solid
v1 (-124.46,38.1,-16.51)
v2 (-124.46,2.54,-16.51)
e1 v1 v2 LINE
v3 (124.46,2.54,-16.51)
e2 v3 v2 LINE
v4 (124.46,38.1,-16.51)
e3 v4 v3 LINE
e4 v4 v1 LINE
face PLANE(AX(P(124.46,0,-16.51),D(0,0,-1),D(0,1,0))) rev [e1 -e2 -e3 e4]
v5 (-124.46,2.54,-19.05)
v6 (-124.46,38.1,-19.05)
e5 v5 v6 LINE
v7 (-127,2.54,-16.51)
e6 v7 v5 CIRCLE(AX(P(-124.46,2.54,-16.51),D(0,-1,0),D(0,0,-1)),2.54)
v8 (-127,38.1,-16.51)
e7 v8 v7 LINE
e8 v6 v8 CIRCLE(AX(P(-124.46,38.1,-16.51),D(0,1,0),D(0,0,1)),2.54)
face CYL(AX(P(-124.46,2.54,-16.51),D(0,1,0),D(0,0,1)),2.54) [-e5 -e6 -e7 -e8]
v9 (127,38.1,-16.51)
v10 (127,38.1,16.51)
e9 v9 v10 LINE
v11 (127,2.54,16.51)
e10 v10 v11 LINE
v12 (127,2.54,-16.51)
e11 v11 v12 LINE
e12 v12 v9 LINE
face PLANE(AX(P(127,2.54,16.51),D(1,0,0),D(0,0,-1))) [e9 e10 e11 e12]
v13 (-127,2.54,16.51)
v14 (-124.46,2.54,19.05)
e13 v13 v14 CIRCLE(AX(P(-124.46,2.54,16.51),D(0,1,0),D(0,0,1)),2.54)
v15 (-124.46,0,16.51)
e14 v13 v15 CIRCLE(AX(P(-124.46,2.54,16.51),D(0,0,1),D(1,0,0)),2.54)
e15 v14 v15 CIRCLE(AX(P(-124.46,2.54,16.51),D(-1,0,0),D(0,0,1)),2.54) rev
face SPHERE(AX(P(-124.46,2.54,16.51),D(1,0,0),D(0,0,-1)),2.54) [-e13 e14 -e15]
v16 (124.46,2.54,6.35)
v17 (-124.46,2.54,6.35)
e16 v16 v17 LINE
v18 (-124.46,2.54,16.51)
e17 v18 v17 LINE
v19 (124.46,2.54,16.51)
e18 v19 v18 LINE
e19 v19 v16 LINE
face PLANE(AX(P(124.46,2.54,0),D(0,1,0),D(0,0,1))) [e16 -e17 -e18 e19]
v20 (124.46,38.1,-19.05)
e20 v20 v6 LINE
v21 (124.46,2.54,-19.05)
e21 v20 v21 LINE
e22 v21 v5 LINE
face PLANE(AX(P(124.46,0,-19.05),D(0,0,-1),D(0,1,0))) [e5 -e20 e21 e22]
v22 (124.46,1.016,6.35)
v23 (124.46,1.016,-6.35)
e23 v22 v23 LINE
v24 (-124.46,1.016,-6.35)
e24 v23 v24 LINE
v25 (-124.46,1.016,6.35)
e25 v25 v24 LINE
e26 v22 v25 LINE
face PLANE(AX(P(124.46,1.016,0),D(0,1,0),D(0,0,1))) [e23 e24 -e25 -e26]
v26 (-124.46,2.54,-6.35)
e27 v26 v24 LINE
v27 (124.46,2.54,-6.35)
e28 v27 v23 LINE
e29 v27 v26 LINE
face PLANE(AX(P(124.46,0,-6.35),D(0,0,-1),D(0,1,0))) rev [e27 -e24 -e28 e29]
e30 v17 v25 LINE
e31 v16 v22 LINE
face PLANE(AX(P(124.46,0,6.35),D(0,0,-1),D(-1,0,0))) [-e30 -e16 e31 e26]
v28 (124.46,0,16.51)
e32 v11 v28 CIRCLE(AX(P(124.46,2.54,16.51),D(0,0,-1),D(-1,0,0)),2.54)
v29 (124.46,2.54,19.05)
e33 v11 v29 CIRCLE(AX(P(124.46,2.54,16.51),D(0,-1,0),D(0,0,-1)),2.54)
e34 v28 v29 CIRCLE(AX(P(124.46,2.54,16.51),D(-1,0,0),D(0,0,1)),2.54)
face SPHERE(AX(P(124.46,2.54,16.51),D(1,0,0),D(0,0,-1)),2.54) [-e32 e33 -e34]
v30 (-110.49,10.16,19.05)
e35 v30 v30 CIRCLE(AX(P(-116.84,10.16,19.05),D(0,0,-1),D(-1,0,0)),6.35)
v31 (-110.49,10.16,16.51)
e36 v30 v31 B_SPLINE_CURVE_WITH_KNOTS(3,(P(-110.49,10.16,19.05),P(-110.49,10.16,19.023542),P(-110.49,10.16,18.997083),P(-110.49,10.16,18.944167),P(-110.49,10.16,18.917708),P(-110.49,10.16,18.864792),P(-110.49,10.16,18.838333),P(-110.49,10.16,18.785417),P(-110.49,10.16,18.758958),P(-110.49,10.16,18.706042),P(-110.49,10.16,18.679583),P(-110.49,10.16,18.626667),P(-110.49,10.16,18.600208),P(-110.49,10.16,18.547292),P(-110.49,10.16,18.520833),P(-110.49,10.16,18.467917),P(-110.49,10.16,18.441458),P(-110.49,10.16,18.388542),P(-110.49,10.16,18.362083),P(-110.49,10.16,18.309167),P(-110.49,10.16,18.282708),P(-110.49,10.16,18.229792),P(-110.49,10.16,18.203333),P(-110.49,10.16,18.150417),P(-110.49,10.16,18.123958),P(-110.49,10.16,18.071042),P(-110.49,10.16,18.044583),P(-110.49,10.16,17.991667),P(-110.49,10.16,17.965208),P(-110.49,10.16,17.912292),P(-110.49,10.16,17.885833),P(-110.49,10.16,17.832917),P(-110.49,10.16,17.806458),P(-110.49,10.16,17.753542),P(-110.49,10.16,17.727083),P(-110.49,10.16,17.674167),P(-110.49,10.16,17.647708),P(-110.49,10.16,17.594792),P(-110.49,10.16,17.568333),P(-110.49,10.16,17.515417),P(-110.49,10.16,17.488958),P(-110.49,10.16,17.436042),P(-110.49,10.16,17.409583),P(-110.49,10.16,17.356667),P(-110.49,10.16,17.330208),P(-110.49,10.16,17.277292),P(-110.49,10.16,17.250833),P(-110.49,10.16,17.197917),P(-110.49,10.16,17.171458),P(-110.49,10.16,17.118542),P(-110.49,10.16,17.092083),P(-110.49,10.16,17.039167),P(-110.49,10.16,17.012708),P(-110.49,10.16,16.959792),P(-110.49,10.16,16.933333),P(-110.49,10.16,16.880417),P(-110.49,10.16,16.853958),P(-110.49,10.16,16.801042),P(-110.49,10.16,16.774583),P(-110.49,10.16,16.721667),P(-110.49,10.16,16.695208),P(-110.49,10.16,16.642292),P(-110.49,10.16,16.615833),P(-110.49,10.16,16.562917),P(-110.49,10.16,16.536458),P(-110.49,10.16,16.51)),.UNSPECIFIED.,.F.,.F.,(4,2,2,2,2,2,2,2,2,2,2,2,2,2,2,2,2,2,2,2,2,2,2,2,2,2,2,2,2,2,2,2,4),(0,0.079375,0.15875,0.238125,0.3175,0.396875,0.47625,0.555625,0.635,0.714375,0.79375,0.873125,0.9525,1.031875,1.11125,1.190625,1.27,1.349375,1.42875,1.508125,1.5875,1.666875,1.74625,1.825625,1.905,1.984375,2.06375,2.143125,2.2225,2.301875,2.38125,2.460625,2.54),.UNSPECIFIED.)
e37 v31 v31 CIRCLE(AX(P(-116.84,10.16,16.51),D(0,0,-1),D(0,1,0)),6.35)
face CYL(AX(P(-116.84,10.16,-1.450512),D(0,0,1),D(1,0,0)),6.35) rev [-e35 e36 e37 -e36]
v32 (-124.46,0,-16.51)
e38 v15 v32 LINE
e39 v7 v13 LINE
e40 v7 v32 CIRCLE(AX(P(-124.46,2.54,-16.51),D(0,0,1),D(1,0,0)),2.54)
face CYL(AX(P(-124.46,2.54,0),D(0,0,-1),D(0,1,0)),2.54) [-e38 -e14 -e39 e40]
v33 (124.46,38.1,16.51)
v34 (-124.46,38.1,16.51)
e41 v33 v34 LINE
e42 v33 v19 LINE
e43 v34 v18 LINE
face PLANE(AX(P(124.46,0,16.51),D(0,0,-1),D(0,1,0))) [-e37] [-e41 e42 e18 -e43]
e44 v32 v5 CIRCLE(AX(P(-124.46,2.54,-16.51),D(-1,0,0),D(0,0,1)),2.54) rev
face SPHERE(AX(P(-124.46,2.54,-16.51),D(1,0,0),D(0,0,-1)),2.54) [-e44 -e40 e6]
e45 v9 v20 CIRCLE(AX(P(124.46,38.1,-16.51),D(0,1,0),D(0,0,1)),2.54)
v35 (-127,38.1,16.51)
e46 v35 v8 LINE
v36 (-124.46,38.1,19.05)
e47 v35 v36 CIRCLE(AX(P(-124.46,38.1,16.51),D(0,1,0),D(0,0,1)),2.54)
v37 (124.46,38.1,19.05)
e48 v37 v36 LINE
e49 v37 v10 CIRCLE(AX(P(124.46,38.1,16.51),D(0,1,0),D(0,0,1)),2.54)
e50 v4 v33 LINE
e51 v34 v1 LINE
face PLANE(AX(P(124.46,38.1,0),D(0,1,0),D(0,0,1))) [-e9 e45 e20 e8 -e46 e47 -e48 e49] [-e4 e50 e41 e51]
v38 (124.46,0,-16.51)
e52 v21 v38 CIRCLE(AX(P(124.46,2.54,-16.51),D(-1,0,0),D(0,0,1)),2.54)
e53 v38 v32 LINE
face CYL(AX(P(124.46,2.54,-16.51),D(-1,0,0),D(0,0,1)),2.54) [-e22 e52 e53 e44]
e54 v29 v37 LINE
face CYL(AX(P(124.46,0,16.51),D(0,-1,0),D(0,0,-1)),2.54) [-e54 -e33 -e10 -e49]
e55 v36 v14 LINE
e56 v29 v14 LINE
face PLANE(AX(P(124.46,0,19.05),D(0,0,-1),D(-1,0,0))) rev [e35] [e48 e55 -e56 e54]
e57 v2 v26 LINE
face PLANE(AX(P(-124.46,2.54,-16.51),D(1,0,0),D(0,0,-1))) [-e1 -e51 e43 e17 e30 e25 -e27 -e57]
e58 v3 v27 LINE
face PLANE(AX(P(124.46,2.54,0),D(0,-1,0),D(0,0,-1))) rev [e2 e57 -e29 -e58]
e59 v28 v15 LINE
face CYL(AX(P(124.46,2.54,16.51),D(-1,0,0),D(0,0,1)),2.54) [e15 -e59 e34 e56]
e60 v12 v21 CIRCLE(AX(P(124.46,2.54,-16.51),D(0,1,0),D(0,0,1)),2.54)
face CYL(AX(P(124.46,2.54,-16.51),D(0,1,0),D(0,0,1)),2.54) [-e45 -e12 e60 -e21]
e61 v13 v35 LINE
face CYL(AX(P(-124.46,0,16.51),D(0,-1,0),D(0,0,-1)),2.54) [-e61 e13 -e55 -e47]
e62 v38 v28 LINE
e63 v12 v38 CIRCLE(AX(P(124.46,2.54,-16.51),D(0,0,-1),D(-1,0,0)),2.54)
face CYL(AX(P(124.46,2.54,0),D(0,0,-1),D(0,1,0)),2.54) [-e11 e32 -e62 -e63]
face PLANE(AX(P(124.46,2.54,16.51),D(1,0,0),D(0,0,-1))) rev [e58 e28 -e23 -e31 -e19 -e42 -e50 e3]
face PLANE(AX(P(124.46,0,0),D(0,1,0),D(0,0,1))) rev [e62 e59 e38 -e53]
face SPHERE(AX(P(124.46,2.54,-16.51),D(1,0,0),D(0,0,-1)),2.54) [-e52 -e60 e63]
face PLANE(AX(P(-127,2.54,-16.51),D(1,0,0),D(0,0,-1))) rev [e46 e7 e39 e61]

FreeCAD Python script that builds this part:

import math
import FreeCAD as App
import Part
import Sketcher
Q = App.Units.Quantity


def edges_at(feature, points):
    """Names of the edges that pass closest to the given points."""
    edges = feature.Shape.Edges
    near = lambda p: min(range(len(edges)), key=lambda i: edges[i].distToShape(Part.Vertex(*p))[0])
    return sorted({f"Edge{near(p) + 1}" for p in points})

doc = App.newDocument("Part")
params = doc.addObject("Spreadsheet::Sheet", "Params")
for row, (alias, value) in enumerate([
    ("sketch1_radius", "0.1 in"),
    ("sketch1_width", "1.4 in"),
    ("sketch1_height", "1.3 in"),
    ("sketch1_height2", "0.4 in"),
    ("sketch1_width2", "0.06 in"),
    ("pad1_length", "9.8 in"),
    ("sketch2_radius", "0.1 in"),
    ("sketch2_width", "1.4 in"),
    ("sketch2_height", "1.3 in"),
    ("pad2_length", "0.1 in"),
    ("sketch3_radius", "0.1 in"),
    ("sketch3_width", "1.4 in"),
    ("sketch3_height", "1.3 in"),
    ("pad3_length", "0.1 in"),
    ("sketch4_diameter", "0.5 in"),
    ("pocket1_length", "0.1 in"),
    ("fillet_radius", "0.1 in"),
    ("fillet2_radius", "0.1 in"),
], start=1):
    params.set(f"A{row}", alias)
    params.set(f"B{row}", "=" + value)
    params.setAlias(f"B{row}", alias)

body = doc.addObject("PartDesign::Body", "Body")

sketch1 = body.newObject("Sketcher::SketchObject", "Sketch")
sketch1.AttachmentSupport = (doc.getObject("YZ_Plane"), [""])
sketch1.MapMode = "FlatFace"
sketch1.addGeometry([
    Part.LineSegment(App.Vector(38.1, 16.5, 0), App.Vector(38.1, 19.1, 0)),
    Part.LineSegment(App.Vector(38.1, 19.1, 0), App.Vector(2.5, 19.1, 0)),
    Part.ArcOfCircle(Part.Circle(App.Vector(2.5, 16.5, 0), App.Vector(0, 0, 1), 2.5), math.radians(90), math.radians(180)),
    Part.LineSegment(App.Vector(0, 16.5, 0), App.Vector(0, -16.5, 0)),
    Part.ArcOfCircle(Part.Circle(App.Vector(2.5, -16.5, 0), App.Vector(0, 0, 1), 2.5), math.radians(-180), math.radians(-90)),
    Part.LineSegment(App.Vector(2.5, -19.1, 0), App.Vector(38.1, -19.1, 0)),
    Part.LineSegment(App.Vector(38.1, -19.1, 0), App.Vector(38.1, -16.5, 0)),
    Part.LineSegment(App.Vector(38.1, -16.5, 0), App.Vector(2.5, -16.5, 0)),
    Part.LineSegment(App.Vector(2.5, -16.5, 0), App.Vector(2.5, -6.3, 0)),
    Part.LineSegment(App.Vector(2.5, -6.3, 0), App.Vector(1, -6.3, 0)),
    Part.LineSegment(App.Vector(1, -6.3, 0), App.Vector(1, 6.3, 0)),
    Part.LineSegment(App.Vector(1, 6.3, 0), App.Vector(2.5, 6.3, 0)),
    Part.LineSegment(App.Vector(2.5, 6.3, 0), App.Vector(2.5, 16.5, 0)),
    Part.LineSegment(App.Vector(2.5, 16.5, 0), App.Vector(38.1, 16.5, 0)),
], False)
sketch1.addConstraint([
    Sketcher.Constraint("Coincident", 0, 2, 1, 1),
    Sketcher.Constraint("Tangent", 1, 2, 2, 1),
    Sketcher.Constraint("Tangent", 2, 2, 3, 1),
    Sketcher.Constraint("Tangent", 3, 2, 4, 1),
    Sketcher.Constraint("Tangent", 4, 2, 5, 1),
    Sketcher.Constraint("Coincident", 5, 2, 6, 1),
    Sketcher.Constraint("Coincident", 6, 2, 7, 1),
    Sketcher.Constraint("Coincident", 7, 2, 8, 1),
    Sketcher.Constraint("Coincident", 8, 2, 9, 1),
    Sketcher.Constraint("Coincident", 9, 2, 10, 1),
    Sketcher.Constraint("Coincident", 10, 2, 11, 1),
    Sketcher.Constraint("Coincident", 11, 2, 12, 1),
    Sketcher.Constraint("Coincident", 12, 2, 13, 1),
    Sketcher.Constraint("Coincident", 13, 2, 0, 1),
    Sketcher.Constraint("Vertical", 0),
    Sketcher.Constraint("Horizontal", 1),
    Sketcher.Constraint("Vertical", 3),
    Sketcher.Constraint("Horizontal", 5),
    Sketcher.Constraint("Vertical", 6),
    Sketcher.Constraint("Horizontal", 7),
    Sketcher.Constraint("Vertical", 8),
    Sketcher.Constraint("Horizontal", 9),
    Sketcher.Constraint("Vertical", 10),
    Sketcher.Constraint("Horizontal", 11),
    Sketcher.Constraint("Vertical", 12),
    Sketcher.Constraint("Horizontal", 13),
    Sketcher.Constraint("Coincident", 7, 2, 4, 3),
    Sketcher.Constraint("Coincident", 12, 2, 2, 3),
    Sketcher.Constraint("Equal", 2, 4),
    Sketcher.Constraint("Symmetric", 2, 2, 3, 2, -1, 1),
    Sketcher.Constraint("Vertical", 0, 2, 5, 2),
    Sketcher.Constraint("Equal", 8, 12),
    Sketcher.Constraint("Radius", 2, Q("0.1 in")),
    Sketcher.Constraint("DistanceX", 1, 2, 1, 1, Q("1.4 in")),
    Sketcher.Constraint("DistanceY", 3, 2, 3, 1, Q("1.3 in")),
    Sketcher.Constraint("DistanceY", 8, 1, 8, 2, Q("0.4 in")),
    Sketcher.Constraint("DistanceX", 9, 2, 9, 1, Q("0.06 in")),
])
sketch1.setExpression("Constraints[32]", "Params.sketch1_radius")
sketch1.setExpression("Constraints[33]", "Params.sketch1_width")
sketch1.setExpression("Constraints[34]", "Params.sketch1_height")
sketch1.setExpression("Constraints[35]", "Params.sketch1_height2")
sketch1.setExpression("Constraints[36]", "Params.sketch1_width2")
pad1 = body.newObject("PartDesign::Pad", "Pad")
pad1.Profile = sketch1
pad1.setExpression("Length", "Params.pad1_length")
pad1.Midplane = True

sketch2 = body.newObject("Sketcher::SketchObject", "Sketch001")
sketch2.AttachmentSupport = (doc.getObject("YZ_Plane"), [""])
sketch2.MapMode = "FlatFace"
sketch2.AttachmentOffset = App.Placement(App.Vector(0, 0, 5 * 25.4), App.Rotation())
sketch2.addGeometry([
    Part.LineSegment(App.Vector(38.1, 19.1, 0), App.Vector(2.5, 19.1, 0)),
    Part.ArcOfCircle(Part.Circle(App.Vector(2.5, 16.5, 0), App.Vector(0, 0, 1), 2.5), math.radians(90), math.radians(180)),
    Part.LineSegment(App.Vector(0, 16.5, 0), App.Vector(0, -16.5, 0)),
    Part.ArcOfCircle(Part.Circle(App.Vector(2.5, -16.5, 0), App.Vector(0, 0, 1), 2.5), math.radians(-180), math.radians(-90)),
    Part.LineSegment(App.Vector(2.5, -19.1, 0), App.Vector(38.1, -19.1, 0)),
    Part.LineSegment(App.Vector(38.1, -19.1, 0), App.Vector(38.1, 19.1, 0)),
], False)
sketch2.addConstraint([
    Sketcher.Constraint("Tangent", 0, 2, 1, 1),
    Sketcher.Constraint("Tangent", 1, 2, 2, 1),
    Sketcher.Constraint("Tangent", 2, 2, 3, 1),
    Sketcher.Constraint("Tangent", 3, 2, 4, 1),
    Sketcher.Constraint("Coincident", 4, 2, 5, 1),
    Sketcher.Constraint("Coincident", 5, 2, 0, 1),
    Sketcher.Constraint("Horizontal", 0),
    Sketcher.Constraint("Vertical", 2),
    Sketcher.Constraint("Horizontal", 4),
    Sketcher.Constraint("Vertical", 5),
    Sketcher.Constraint("Equal", 1, 3),
    Sketcher.Constraint("Symmetric", 1, 2, 2, 2, -1, 1),
    Sketcher.Constraint("Radius", 1, Q("0.1 in")),
    Sketcher.Constraint("DistanceX", 0, 2, 0, 1, Q("1.4 in")),
    Sketcher.Constraint("DistanceY", 2, 2, 2, 1, Q("1.3 in")),
])
sketch2.setExpression("Constraints[12]", "Params.sketch2_radius")
sketch2.setExpression("Constraints[13]", "Params.sketch2_width")
sketch2.setExpression("Constraints[14]", "Params.sketch2_height")
pad2 = body.newObject("PartDesign::Pad", "Pad001")
pad2.Profile = sketch2
pad2.setExpression("Length", "Params.pad2_length")
pad2.Reversed = True

sketch3 = body.newObject("Sketcher::SketchObject", "Sketch002")
sketch3.AttachmentSupport = (doc.getObject("YZ_Plane"), [""])
sketch3.MapMode = "FlatFace"
sketch3.AttachmentOffset = App.Placement(App.Vector(0, 0, -4.9 * 25.4), App.Rotation())
sketch3.addGeometry([
    Part.LineSegment(App.Vector(38.1, 19.1, 0), App.Vector(2.5, 19.1, 0)),
    Part.ArcOfCircle(Part.Circle(App.Vector(2.5, 16.5, 0), App.Vector(0, 0, 1), 2.5), math.radians(90), math.radians(180)),
    Part.LineSegment(App.Vector(0, 16.5, 0), App.Vector(0, -16.5, 0)),
    Part.ArcOfCircle(Part.Circle(App.Vector(2.5, -16.5, 0), App.Vector(0, 0, 1), 2.5), math.radians(-180), math.radians(-90)),
    Part.LineSegment(App.Vector(2.5, -19.1, 0), App.Vector(38.1, -19.1, 0)),
    Part.LineSegment(App.Vector(38.1, -19.1, 0), App.Vector(38.1, 19.1, 0)),
], False)
sketch3.addConstraint([
    Sketcher.Constraint("Tangent", 0, 2, 1, 1),
    Sketcher.Constraint("Tangent", 1, 2, 2, 1),
    Sketcher.Constraint("Tangent", 2, 2, 3, 1),
    Sketcher.Constraint("Tangent", 3, 2, 4, 1),
    Sketcher.Constraint("Coincident", 4, 2, 5, 1),
    Sketcher.Constraint("Coincident", 5, 2, 0, 1),
    Sketcher.Constraint("Horizontal", 0),
    Sketcher.Constraint("Vertical", 2),
    Sketcher.Constraint("Horizontal", 4),
    Sketcher.Constraint("Vertical", 5),
    Sketcher.Constraint("Equal", 1, 3),
    Sketcher.Constraint("Symmetric", 1, 2, 2, 2, -1, 1),
    Sketcher.Constraint("Radius", 1, Q("0.1 in")),
    Sketcher.Constraint("DistanceX", 0, 2, 0, 1, Q("1.4 in")),
    Sketcher.Constraint("DistanceY", 2, 2, 2, 1, Q("1.3 in")),
])
sketch3.setExpression("Constraints[12]", "Params.sketch3_radius")
sketch3.setExpression("Constraints[13]", "Params.sketch3_width")
sketch3.setExpression("Constraints[14]", "Params.sketch3_height")
pad3 = body.newObject("PartDesign::Pad", "Pad002")
pad3.Profile = sketch3
pad3.setExpression("Length", "Params.pad3_length")
pad3.Reversed = True

sketch4 = body.newObject("Sketcher::SketchObject", "Sketch003")
sketch4.AttachmentSupport = (doc.getObject("XY_Plane"), [""])
sketch4.MapMode = "FlatFace"
sketch4.AttachmentOffset = App.Placement(App.Vector(0, 0, 0.75 * 25.4), App.Rotation())
sketch4.addGeometry(Part.Circle(App.Vector(-117, 10, 0), App.Vector(0, 0, 1), 6), False)
sketch4.addConstraint([
    Sketcher.Constraint("Diameter", 0, Q("0.5 in")),
    Sketcher.Constraint("DistanceX", 0, 3, -1, 1, Q("4.6 in")),
    Sketcher.Constraint("DistanceY", -1, 1, 0, 3, Q("0.4 in")),
])
sketch4.setExpression("Constraints[0]", "Params.sketch4_diameter")
pocket1 = body.newObject("PartDesign::Pocket", "Pocket")
pocket1.Profile = sketch4
pocket1.setExpression("Length", "Params.pocket1_length")
doc.recompute()

fillet = body.newObject("PartDesign::Fillet", "Fillet")
fillet.Base = (pocket1, edges_at(pocket1, [
    (-127, 0.744, -18.306),
    (-127, 0, 0),
    (-127, 0.744, 18.306),
    (-127, 20.32, 19.05),
    (-127, 20.32, -19.05),
]))
fillet.setExpression("Radius", "Params.fillet_radius")
doc.recompute()

fillet2 = body.newObject("PartDesign::Fillet", "Fillet001")
fillet2.Base = (fillet, edges_at(fillet, [
    (127, 0, 0),
    (127, 20.32, 19.05),
    (127, 0.744, -18.306),
    (127, 20.32, -19.05),
    (127, 0.744, 18.306),
]))
fillet2.setExpression("Radius", "Params.fillet2_radius")

doc.recompute()
